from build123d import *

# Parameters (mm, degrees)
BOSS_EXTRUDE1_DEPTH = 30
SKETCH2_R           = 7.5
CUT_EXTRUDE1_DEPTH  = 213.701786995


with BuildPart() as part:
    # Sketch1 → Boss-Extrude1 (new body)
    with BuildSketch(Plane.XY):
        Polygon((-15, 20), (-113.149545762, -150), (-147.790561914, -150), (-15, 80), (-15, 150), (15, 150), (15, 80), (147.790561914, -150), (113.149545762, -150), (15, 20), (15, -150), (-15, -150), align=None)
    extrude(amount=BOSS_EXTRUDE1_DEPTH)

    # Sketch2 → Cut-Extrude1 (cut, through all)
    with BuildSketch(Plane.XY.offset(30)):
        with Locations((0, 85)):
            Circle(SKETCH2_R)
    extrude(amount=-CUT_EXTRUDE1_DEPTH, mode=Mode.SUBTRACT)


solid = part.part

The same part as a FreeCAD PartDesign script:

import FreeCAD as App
import Part
import Sketcher
from FreeCAD import Vector
Q = App.Units.Quantity

doc = App.newDocument("Part")
body = doc.addObject("PartDesign::Body", "Body")

sketch1 = body.newObject("Sketcher::SketchObject", "Sketch")
sketch1.AttachmentSupport = (doc.getObject("XY_Plane"), [""])
sketch1.MapMode = "FlatFace"
sketch1.addGeometry([
    Part.LineSegment(Vector(-113, -150, 0), Vector(-15, 20, 0)),
    Part.LineSegment(Vector(-15, 20, 0), Vector(-15, -150, 0)),
    Part.LineSegment(Vector(-15, -150, 0), Vector(15, -150, 0)),
    Part.LineSegment(Vector(15, -150, 0), Vector(15, 20, 0)),
    Part.LineSegment(Vector(15, 20, 0), Vector(113, -150, 0)),
    Part.LineSegment(Vector(113, -150, 0), Vector(148, -150, 0)),
    Part.LineSegment(Vector(148, -150, 0), Vector(15, 80, 0)),
    Part.LineSegment(Vector(15, 80, 0), Vector(15, 150, 0)),
    Part.LineSegment(Vector(15, 150, 0), Vector(-15, 150, 0)),
    Part.LineSegment(Vector(-15, 150, 0), Vector(-15, 80, 0)),
    Part.LineSegment(Vector(-15, 80, 0), Vector(-148, -150, 0)),
    Part.LineSegment(Vector(-148, -150, 0), Vector(-113, -150, 0)),
], False)
sketch1.addConstraint([
    Sketcher.Constraint("Coincident", 0, 2, 1, 1),
    Sketcher.Constraint("Coincident", 1, 2, 2, 1),
    Sketcher.Constraint("Coincident", 2, 2, 3, 1),
    Sketcher.Constraint("Coincident", 3, 2, 4, 1),
    Sketcher.Constraint("Coincident", 4, 2, 5, 1),
    Sketcher.Constraint("Coincident", 5, 2, 6, 1),
    Sketcher.Constraint("Coincident", 6, 2, 7, 1),
    Sketcher.Constraint("Coincident", 7, 2, 8, 1),
    Sketcher.Constraint("Coincident", 8, 2, 9, 1),
    Sketcher.Constraint("Coincident", 9, 2, 10, 1),
    Sketcher.Constraint("Coincident", 10, 2, 11, 1),
    Sketcher.Constraint("Coincident", 11, 2, 0, 1),
    Sketcher.Constraint("Vertical", 1),
    Sketcher.Constraint("Horizontal", 2),
    Sketcher.Constraint("Vertical", 3),
    Sketcher.Constraint("Horizontal", 5),
    Sketcher.Constraint("Vertical", 7),
    Sketcher.Constraint("Horizontal", 8),
    Sketcher.Constraint("Vertical", 9),
    Sketcher.Constraint("Horizontal", 11),
    Sketcher.Constraint("Symmetric", 1, 2, 7, 2, -1, 1),
    Sketcher.Constraint("Symmetric", 0, 2, 3, 2, -2),
    Sketcher.Constraint("Symmetric", 6, 2, 9, 2, -2),
    Sketcher.Constraint("Symmetric", 5, 2, 10, 2, -2),
    Sketcher.Constraint("Parallel", 4, 6),
    Sketcher.Constraint("Parallel", 0, 10),
    Sketcher.Constraint("Horizontal", 2, 2, 4, 2),
    Sketcher.Constraint("DistanceX", 2, 1, 2, 2, 30.0),
    Sketcher.Constraint("DistanceY", 1, 2, 1, 1, 170.0),
    Sketcher.Constraint("DistanceY", 7, 1, 7, 2, 70.0),
    Sketcher.Constraint("Angle", 0, Q("60 deg")),
    Sketcher.Constraint("DistanceY", -1, 1, 0, 2, 20.0),
])
pad1 = body.newObject("PartDesign::Pad", "Pad")
pad1.Profile = sketch1
pad1.Length = 30

sketch2 = body.newObject("Sketcher::SketchObject", "Sketch001")
sketch2.AttachmentSupport = (doc.getObject("XY_Plane"), [""])
sketch2.MapMode = "FlatFace"
sketch2.AttachmentOffset = App.Placement(Vector(0, 0, 30), App.Rotation())
sketch2.addGeometry(Part.Circle(Vector(0, 85, 0), Vector(0, 0, 1), 8), False)
sketch2.addConstraint([
    Sketcher.Constraint("PointOnObject", 0, 3, -2),
    Sketcher.Constraint("Diameter", 0, 15.0),
    Sketcher.Constraint("DistanceY", -1, 1, 0, 3, 85.0),
])
pocket1 = body.newObject("PartDesign::Pocket", "Pocket")
pocket1.Profile = sketch2
pocket1.Type = "ThroughAll"

doc.recompute()
